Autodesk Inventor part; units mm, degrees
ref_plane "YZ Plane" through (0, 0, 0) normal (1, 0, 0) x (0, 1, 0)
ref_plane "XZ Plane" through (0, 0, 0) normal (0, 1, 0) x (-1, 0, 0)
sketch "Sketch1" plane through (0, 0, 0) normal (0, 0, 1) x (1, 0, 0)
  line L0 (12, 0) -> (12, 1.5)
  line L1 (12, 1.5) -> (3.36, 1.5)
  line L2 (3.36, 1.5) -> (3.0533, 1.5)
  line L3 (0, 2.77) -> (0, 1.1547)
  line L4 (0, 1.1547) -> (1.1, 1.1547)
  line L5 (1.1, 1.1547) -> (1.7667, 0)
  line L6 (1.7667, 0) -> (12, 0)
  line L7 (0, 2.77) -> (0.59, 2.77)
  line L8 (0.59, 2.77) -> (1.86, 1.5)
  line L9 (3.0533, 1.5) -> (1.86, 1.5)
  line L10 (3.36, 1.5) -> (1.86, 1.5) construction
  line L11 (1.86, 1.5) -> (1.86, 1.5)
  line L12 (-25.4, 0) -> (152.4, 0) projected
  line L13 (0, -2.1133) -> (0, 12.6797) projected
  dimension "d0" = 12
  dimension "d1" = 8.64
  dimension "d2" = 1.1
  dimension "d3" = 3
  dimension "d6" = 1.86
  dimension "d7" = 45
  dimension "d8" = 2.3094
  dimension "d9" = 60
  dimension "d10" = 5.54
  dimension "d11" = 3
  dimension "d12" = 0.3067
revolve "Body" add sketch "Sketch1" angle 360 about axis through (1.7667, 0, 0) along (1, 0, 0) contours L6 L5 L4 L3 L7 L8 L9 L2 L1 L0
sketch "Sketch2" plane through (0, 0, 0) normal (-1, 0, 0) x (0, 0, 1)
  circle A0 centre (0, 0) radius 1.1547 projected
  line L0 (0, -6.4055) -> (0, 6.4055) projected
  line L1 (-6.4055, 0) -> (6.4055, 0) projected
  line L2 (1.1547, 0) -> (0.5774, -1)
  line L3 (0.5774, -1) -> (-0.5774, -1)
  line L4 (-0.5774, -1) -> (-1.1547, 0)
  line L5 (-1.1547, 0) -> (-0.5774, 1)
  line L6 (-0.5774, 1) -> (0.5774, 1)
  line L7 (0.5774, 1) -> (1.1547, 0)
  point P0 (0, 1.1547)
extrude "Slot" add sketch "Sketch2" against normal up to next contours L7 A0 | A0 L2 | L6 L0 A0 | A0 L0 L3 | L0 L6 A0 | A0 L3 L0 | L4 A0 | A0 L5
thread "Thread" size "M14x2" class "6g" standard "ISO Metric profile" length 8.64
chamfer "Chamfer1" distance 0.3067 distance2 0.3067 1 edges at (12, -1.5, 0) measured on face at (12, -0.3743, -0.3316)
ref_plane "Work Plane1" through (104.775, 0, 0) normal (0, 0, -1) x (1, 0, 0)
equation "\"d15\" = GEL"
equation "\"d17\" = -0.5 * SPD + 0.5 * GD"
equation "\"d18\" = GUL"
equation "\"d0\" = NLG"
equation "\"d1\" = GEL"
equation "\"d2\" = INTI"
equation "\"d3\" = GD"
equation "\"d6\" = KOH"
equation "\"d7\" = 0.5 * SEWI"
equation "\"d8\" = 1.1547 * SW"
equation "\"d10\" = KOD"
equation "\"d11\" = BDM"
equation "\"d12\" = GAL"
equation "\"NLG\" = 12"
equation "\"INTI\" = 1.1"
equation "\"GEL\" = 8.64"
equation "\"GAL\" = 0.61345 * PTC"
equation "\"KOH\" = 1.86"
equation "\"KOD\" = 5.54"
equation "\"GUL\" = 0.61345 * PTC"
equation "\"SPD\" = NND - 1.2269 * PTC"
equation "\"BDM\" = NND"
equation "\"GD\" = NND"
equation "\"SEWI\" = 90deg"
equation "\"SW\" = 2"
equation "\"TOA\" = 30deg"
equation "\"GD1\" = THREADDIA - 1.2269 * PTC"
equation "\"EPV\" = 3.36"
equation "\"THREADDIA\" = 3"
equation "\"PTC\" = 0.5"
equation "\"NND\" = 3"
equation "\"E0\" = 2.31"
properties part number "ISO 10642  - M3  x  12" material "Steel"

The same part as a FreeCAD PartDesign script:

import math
import FreeCAD as App
import Part
import Sketcher
Q = App.Units.Quantity


def edges_at(feature, points):
    """Names of the edges that pass closest to the given points."""
    edges = feature.Shape.Edges
    near = lambda p: min(range(len(edges)), key=lambda i: edges[i].distToShape(Part.Vertex(*p))[0])
    return sorted({f"Edge{near(p) + 1}" for p in points})

doc = App.newDocument("Part")
params = doc.addObject("Spreadsheet::Sheet", "Params")
for row, (alias, value) in enumerate([
    ("sketch1_width", "1.1 mm"),
    ("sketch1_height", "1.5 mm"),
    ("sketch1_width2", "0.59 mm"),
    ("revolution_angle", "360 deg"),
    ("chamfer_size", "0.3067 mm"),
    ("chamfer_size2", "0.3067 mm"),
], start=1):
    params.set(f"A{row}", alias)
    params.set(f"B{row}", "=" + value)
    params.setAlias(f"B{row}", alias)

body = doc.addObject("PartDesign::Body", "Body")

# Sketch on XY plane
sketch1 = doc.addObject("Sketcher::SketchObject", "Sketch")
body.addObject(sketch1)
sketch1.AttachmentSupport = (doc.XY_Plane, [""])
sketch1.MapMode = "FlatFace"
sketch1.addGeometry(Part.LineSegment(App.Vector(1.8, 0, 0), App.Vector(12, 0, 0)), False)
sketch1.addGeometry(Part.LineSegment(App.Vector(12, 0, 0), App.Vector(12, 1.5, 0)), False)
sketch1.addGeometry(Part.LineSegment(App.Vector(12, 1.5, 0), App.Vector(1.9, 1.5, 0)), False)
sketch1.addGeometry(Part.LineSegment(App.Vector(1.9, 1.5, 0), App.Vector(0.6, 2.8, 0)), False)
sketch1.addGeometry(Part.LineSegment(App.Vector(0.6, 2.8, 0), App.Vector(0, 2.8, 0)), False)
sketch1.addGeometry(Part.LineSegment(App.Vector(0, 2.8, 0), App.Vector(0, 1.2, 0)), False)
sketch1.addGeometry(Part.LineSegment(App.Vector(0, 1.2, 0), App.Vector(1.1, 1.2, 0)), False)
sketch1.addGeometry(Part.LineSegment(App.Vector(1.1, 1.2, 0), App.Vector(1.8, 0, 0)), False)
sketch1.addConstraint(Sketcher.Constraint("Coincident", 0, 2, 1, 1))
sketch1.addConstraint(Sketcher.Constraint("Coincident", 1, 2, 2, 1))
sketch1.addConstraint(Sketcher.Constraint("Coincident", 2, 2, 3, 1))
sketch1.addConstraint(Sketcher.Constraint("Coincident", 3, 2, 4, 1))
sketch1.addConstraint(Sketcher.Constraint("Coincident", 4, 2, 5, 1))
sketch1.addConstraint(Sketcher.Constraint("Coincident", 5, 2, 6, 1))
sketch1.addConstraint(Sketcher.Constraint("Coincident", 6, 2, 7, 1))
sketch1.addConstraint(Sketcher.Constraint("Coincident", 7, 2, 0, 1))
sketch1.addConstraint(Sketcher.Constraint("Horizontal", 0))
sketch1.addConstraint(Sketcher.Constraint("Vertical", 1))
sketch1.addConstraint(Sketcher.Constraint("Horizontal", 2))
sketch1.addConstraint(Sketcher.Constraint("Horizontal", 4))
sketch1.addConstraint(Sketcher.Constraint("Vertical", 5))
sketch1.addConstraint(Sketcher.Constraint("Horizontal", 6))
sketch1.addConstraint(Sketcher.Constraint("PointOnObject", 0, 2, -1))
sketch1.addConstraint(Sketcher.Constraint("PointOnObject", 4, 2, -2))
sketch1.addConstraint(Sketcher.Constraint("DistanceX", 6, 1, 6, 2, 1.1))
sketch1.addConstraint(Sketcher.Constraint("DistanceX", -1, 1, 0, 2, 12.0))
sketch1.addConstraint(Sketcher.Constraint("DistanceX", -1, 1, 2, 2, 1.86))
sketch1.addConstraint(Sketcher.Constraint("Angle", 3, Q("135 deg")))
sketch1.addConstraint(Sketcher.Constraint("DistanceY", 1, 1, 1, 2, 1.5))
sketch1.addConstraint(Sketcher.Constraint("DistanceX", 4, 2, 4, 1, 0.59))
sketch1.addConstraint(Sketcher.Constraint("DistanceX", 0, 1, 0, 2, 10.2333))
sketch1.addConstraint(Sketcher.Constraint("DistanceY", 5, 2, 5, 1, 1.6153))
sketch1.setExpression("Constraints[16]", "Params.sketch1_width")
sketch1.setExpression("Constraints[20]", "Params.sketch1_height")
sketch1.setExpression("Constraints[21]", "Params.sketch1_width2")
revolution = doc.addObject("PartDesign::Revolution", "Revolution")
body.addObject(revolution)
revolution.Profile = sketch1
revolution.ReferenceAxis = (sketch1, ["H_Axis"])
revolution.setExpression("Angle", "Params.revolution_angle")

# Sketch on YZ plane
sketch2 = doc.addObject("Sketcher::SketchObject", "Sketch001")
body.addObject(sketch2)
sketch2.AttachmentSupport = (doc.YZ_Plane, [""])
sketch2.MapMode = "FlatFace"
sketch2.addGeometry(Part.LineSegment(App.Vector(1, 0.6, 0), App.Vector(0, 1.2, 0)), False)
sketch2.addGeometry(Part.ArcOfCircle(Part.Circle(App.Vector(0, 0, 0), App.Vector(0, 0, 1), 1.2), math.radians(30), math.radians(90)), False)
sketch2.addGeometry(Part.ArcOfCircle(Part.Circle(App.Vector(0, 0, 0), App.Vector(0, 0, 1), 1.2), math.radians(90), math.radians(150)), False)
sketch2.addGeometry(Part.LineSegment(App.Vector(0, 1.2, 0), App.Vector(-1, 0.6, 0)), False)
sketch2.addGeometry(Part.ArcOfCircle(Part.Circle(App.Vector(0, 0, 0), App.Vector(0, 0, 1), 1.2), math.radians(-30), math.radians(30)), False)
sketch2.addGeometry(Part.LineSegment(App.Vector(1, 0.6, 0), App.Vector(1, -0.6, 0)), False)
sketch2.addGeometry(Part.LineSegment(App.Vector(-1, 0.6, 0), App.Vector(-1, -0.6, 0)), False)
sketch2.addGeometry(Part.ArcOfCircle(Part.Circle(App.Vector(0, 0, 0), App.Vector(0, 0, 1), 1.2), math.radians(150), math.radians(210)), False)
sketch2.addGeometry(Part.LineSegment(App.Vector(-1, -0.6, 0), App.Vector(0, -1.2, 0)), False)
sketch2.addGeometry(Part.ArcOfCircle(Part.Circle(App.Vector(0, 0, 0), App.Vector(0, 0, 1), 1.2), math.radians(-150), math.radians(-90)), False)
sketch2.addGeometry(Part.ArcOfCircle(Part.Circle(App.Vector(0, 0, 0), App.Vector(0, 0, 1), 1.2), math.radians(-90), math.radians(-30)), False)
sketch2.addGeometry(Part.LineSegment(App.Vector(0, -1.2, 0), App.Vector(1, -0.6, 0)), False)
sketch2.addConstraint(Sketcher.Constraint("Coincident", 0, 1, 1, 1))
sketch2.addConstraint(Sketcher.Constraint("Coincident", 1, 2, 0, 2))
sketch2.addConstraint(Sketcher.Constraint("Coincident", 2, 1, 3, 1))
sketch2.addConstraint(Sketcher.Constraint("Coincident", 3, 2, 2, 2))
sketch2.addConstraint(Sketcher.Constraint("Coincident", 4, 1, 5, 2))
sketch2.addConstraint(Sketcher.Constraint("Coincident", 5, 1, 4, 2))
sketch2.addConstraint(Sketcher.Constraint("Coincident", 6, 1, 7, 1))
sketch2.addConstraint(Sketcher.Constraint("Coincident", 7, 2, 6, 2))
sketch2.addConstraint(Sketcher.Constraint("Coincident", 8, 1, 9, 1))
sketch2.addConstraint(Sketcher.Constraint("Coincident", 9, 2, 8, 2))
sketch2.addConstraint(Sketcher.Constraint("Coincident", 10, 1, 11, 1))
sketch2.addConstraint(Sketcher.Constraint("Coincident", 11, 2, 10, 2))
sketch2.addConstraint(Sketcher.Constraint("Vertical", 5))
sketch2.addConstraint(Sketcher.Constraint("Vertical", 6))
sketch2.addConstraint(Sketcher.Constraint("Coincident", 1, 3, -1, 1))
sketch2.addConstraint(Sketcher.Constraint("Coincident", 2, 3, -1, 1))
sketch2.addConstraint(Sketcher.Constraint("Coincident", 4, 3, -1, 1))
sketch2.addConstraint(Sketcher.Constraint("Coincident", 7, 3, -1, 1))
sketch2.addConstraint(Sketcher.Constraint("Coincident", 9, 3, -1, 1))
sketch2.addConstraint(Sketcher.Constraint("Coincident", 10, 3, -1, 1))
sketch2.addConstraint(Sketcher.Constraint("Coincident", 2, 1, 1, 2))
sketch2.addConstraint(Sketcher.Constraint("Coincident", 5, 1, 0, 1))
sketch2.addConstraint(Sketcher.Constraint("Coincident", 6, 1, 3, 2))
sketch2.addConstraint(Sketcher.Constraint("Coincident", 8, 1, 7, 2))
sketch2.addConstraint(Sketcher.Constraint("Coincident", 10, 1, 9, 2))
sketch2.addConstraint(Sketcher.Constraint("PointOnObject", 1, 2, -2))
sketch2.addConstraint(Sketcher.Constraint("PointOnObject", 9, 2, -2))
sketch2.addConstraint(Sketcher.Constraint("Parallel", 0, 8))
sketch2.addConstraint(Sketcher.Constraint("Parallel", 3, 11))
sketch2.addConstraint(Sketcher.Constraint("DistanceX", -1, 1, 0, 1, 1.0))
sketch2.addConstraint(Sketcher.Constraint("Radius", 1, 1.1547))
pad1 = doc.addObject("PartDesign::Pad", "Pad")
body.addObject(pad1)
pad1.Profile = sketch2
pad1.Type = "UpToFirst"
doc.recompute()

chamfer = doc.addObject("PartDesign::Chamfer", "Chamfer")
body.addObject(chamfer)
chamfer.Base = (pad1, edges_at(pad1, [(12, -1.5, 0)]))
chamfer.ChamferType = "Two distances"
chamfer.setExpression("Size", "Params.chamfer_size")
chamfer.setExpression("Size2", "Params.chamfer_size2")

doc.recompute()
